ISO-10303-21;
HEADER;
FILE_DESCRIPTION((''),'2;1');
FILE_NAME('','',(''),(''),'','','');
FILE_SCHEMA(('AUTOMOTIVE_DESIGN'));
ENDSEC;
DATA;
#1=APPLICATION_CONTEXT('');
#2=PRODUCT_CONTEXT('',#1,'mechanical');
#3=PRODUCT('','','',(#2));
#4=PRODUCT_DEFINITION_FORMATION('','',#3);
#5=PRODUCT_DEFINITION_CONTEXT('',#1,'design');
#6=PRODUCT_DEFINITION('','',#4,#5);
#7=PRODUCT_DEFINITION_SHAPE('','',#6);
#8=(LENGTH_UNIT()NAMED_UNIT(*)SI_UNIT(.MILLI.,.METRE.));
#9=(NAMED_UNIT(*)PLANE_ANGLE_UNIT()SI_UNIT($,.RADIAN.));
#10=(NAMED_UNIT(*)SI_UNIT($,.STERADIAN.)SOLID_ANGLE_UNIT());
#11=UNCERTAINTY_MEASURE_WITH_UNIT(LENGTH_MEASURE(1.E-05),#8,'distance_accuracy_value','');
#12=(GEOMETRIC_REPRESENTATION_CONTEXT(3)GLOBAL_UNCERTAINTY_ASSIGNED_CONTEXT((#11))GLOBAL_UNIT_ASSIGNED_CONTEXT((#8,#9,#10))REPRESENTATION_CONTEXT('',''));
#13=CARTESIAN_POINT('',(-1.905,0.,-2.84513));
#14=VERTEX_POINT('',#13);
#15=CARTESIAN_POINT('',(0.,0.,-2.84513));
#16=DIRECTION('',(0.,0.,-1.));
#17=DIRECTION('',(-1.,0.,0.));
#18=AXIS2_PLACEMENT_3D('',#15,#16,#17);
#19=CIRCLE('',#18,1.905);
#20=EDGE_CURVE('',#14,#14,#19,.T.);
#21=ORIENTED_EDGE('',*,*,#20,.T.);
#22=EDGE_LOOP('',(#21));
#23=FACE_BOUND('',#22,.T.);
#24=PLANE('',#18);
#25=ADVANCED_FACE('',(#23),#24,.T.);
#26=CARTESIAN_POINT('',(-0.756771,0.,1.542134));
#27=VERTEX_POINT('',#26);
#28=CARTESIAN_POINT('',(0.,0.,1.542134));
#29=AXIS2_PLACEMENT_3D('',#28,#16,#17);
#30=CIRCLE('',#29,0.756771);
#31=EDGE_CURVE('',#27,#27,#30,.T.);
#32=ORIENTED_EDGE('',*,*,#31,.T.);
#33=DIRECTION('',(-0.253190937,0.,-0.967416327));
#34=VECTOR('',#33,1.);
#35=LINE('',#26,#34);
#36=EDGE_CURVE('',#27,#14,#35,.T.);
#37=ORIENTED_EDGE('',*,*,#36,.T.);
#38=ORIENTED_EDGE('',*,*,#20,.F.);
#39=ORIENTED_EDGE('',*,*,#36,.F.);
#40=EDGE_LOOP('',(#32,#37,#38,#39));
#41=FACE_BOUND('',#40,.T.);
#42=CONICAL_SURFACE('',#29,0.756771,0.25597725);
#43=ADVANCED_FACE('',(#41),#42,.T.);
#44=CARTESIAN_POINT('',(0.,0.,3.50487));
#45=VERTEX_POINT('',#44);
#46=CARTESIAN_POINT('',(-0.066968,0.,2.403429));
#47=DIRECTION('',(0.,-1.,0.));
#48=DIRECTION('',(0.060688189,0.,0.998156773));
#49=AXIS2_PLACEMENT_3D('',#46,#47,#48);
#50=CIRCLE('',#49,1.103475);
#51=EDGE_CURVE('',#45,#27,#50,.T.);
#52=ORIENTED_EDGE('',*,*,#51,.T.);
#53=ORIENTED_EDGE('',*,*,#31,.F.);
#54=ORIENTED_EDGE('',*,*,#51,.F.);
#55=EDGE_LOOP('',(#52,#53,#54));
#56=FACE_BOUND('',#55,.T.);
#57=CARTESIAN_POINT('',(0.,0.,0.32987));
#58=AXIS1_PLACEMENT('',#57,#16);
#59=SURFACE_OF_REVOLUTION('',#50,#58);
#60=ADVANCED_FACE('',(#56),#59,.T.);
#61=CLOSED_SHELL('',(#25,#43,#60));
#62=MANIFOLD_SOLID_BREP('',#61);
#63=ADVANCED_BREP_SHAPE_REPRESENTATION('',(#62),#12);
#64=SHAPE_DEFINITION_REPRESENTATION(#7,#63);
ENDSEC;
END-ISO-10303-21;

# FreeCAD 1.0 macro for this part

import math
import FreeCAD as App
import Part
import Sketcher
Q = App.Units.Quantity

doc = App.newDocument("Part")
body = doc.addObject("PartDesign::Body", "Body")

# Sketch on XZ plane
sketch1 = doc.addObject("Sketcher::SketchObject", "Sketch")
body.addObject(sketch1)
sketch1.AttachmentSupport = (doc.XZ_Plane, [""])
sketch1.MapMode = "FlatFace"
sketch1.addGeometry([
    Part.LineSegment(App.Vector(0, -2.84513, 0), App.Vector(0, 3.50487, 0)),
    Part.ArcOfCircle(Part.Circle(App.Vector(-0.066968, 2.403429, 0), App.Vector(0, 0, 1), 1.103475), math.radians(86.520685), math.radians(231.309086)),
    Part.LineSegment(App.Vector(-0.756771, 1.542134, 0), App.Vector(-1.905, -2.84513, 0)),
    Part.LineSegment(App.Vector(-1.905, -2.84513, 0), App.Vector(0, -2.84513, 0)),
], False)
sketch1.addConstraint([
    Sketcher.Constraint("Coincident", 0, 2, 1, 1),
    Sketcher.Constraint("Coincident", 1, 2, 2, 1),
    Sketcher.Constraint("Coincident", 2, 2, 3, 1),
    Sketcher.Constraint("Coincident", 3, 2, 0, 1),
    Sketcher.Constraint("Vertical", 0),
    Sketcher.Constraint("Horizontal", 3),
    Sketcher.Constraint("PointOnObject", 0, 2, -2),
    Sketcher.Constraint("DistanceY", 0, 1, 0, 2, Q("0.25 in")),
    Sketcher.Constraint("DistanceX", 3, 1, 3, 2, Q("0.075 in")),
    Sketcher.Constraint("Radius", 1, 1.103475),
    Sketcher.Constraint("DistanceY", -1, 1, 1, 3, 2.403429),
    Sketcher.Constraint("DistanceY", -1, 1, 0, 2, 3.50487),
    Sketcher.Constraint("DistanceX", 1, 2, -1, 1, 0.756771),
])
revolution = doc.addObject("PartDesign::Revolution", "Revolution")
body.addObject(revolution)
revolution.Profile = sketch1
revolution.ReferenceAxis = (sketch1, ["V_Axis"])
revolution.Angle = 360

doc.recompute()
